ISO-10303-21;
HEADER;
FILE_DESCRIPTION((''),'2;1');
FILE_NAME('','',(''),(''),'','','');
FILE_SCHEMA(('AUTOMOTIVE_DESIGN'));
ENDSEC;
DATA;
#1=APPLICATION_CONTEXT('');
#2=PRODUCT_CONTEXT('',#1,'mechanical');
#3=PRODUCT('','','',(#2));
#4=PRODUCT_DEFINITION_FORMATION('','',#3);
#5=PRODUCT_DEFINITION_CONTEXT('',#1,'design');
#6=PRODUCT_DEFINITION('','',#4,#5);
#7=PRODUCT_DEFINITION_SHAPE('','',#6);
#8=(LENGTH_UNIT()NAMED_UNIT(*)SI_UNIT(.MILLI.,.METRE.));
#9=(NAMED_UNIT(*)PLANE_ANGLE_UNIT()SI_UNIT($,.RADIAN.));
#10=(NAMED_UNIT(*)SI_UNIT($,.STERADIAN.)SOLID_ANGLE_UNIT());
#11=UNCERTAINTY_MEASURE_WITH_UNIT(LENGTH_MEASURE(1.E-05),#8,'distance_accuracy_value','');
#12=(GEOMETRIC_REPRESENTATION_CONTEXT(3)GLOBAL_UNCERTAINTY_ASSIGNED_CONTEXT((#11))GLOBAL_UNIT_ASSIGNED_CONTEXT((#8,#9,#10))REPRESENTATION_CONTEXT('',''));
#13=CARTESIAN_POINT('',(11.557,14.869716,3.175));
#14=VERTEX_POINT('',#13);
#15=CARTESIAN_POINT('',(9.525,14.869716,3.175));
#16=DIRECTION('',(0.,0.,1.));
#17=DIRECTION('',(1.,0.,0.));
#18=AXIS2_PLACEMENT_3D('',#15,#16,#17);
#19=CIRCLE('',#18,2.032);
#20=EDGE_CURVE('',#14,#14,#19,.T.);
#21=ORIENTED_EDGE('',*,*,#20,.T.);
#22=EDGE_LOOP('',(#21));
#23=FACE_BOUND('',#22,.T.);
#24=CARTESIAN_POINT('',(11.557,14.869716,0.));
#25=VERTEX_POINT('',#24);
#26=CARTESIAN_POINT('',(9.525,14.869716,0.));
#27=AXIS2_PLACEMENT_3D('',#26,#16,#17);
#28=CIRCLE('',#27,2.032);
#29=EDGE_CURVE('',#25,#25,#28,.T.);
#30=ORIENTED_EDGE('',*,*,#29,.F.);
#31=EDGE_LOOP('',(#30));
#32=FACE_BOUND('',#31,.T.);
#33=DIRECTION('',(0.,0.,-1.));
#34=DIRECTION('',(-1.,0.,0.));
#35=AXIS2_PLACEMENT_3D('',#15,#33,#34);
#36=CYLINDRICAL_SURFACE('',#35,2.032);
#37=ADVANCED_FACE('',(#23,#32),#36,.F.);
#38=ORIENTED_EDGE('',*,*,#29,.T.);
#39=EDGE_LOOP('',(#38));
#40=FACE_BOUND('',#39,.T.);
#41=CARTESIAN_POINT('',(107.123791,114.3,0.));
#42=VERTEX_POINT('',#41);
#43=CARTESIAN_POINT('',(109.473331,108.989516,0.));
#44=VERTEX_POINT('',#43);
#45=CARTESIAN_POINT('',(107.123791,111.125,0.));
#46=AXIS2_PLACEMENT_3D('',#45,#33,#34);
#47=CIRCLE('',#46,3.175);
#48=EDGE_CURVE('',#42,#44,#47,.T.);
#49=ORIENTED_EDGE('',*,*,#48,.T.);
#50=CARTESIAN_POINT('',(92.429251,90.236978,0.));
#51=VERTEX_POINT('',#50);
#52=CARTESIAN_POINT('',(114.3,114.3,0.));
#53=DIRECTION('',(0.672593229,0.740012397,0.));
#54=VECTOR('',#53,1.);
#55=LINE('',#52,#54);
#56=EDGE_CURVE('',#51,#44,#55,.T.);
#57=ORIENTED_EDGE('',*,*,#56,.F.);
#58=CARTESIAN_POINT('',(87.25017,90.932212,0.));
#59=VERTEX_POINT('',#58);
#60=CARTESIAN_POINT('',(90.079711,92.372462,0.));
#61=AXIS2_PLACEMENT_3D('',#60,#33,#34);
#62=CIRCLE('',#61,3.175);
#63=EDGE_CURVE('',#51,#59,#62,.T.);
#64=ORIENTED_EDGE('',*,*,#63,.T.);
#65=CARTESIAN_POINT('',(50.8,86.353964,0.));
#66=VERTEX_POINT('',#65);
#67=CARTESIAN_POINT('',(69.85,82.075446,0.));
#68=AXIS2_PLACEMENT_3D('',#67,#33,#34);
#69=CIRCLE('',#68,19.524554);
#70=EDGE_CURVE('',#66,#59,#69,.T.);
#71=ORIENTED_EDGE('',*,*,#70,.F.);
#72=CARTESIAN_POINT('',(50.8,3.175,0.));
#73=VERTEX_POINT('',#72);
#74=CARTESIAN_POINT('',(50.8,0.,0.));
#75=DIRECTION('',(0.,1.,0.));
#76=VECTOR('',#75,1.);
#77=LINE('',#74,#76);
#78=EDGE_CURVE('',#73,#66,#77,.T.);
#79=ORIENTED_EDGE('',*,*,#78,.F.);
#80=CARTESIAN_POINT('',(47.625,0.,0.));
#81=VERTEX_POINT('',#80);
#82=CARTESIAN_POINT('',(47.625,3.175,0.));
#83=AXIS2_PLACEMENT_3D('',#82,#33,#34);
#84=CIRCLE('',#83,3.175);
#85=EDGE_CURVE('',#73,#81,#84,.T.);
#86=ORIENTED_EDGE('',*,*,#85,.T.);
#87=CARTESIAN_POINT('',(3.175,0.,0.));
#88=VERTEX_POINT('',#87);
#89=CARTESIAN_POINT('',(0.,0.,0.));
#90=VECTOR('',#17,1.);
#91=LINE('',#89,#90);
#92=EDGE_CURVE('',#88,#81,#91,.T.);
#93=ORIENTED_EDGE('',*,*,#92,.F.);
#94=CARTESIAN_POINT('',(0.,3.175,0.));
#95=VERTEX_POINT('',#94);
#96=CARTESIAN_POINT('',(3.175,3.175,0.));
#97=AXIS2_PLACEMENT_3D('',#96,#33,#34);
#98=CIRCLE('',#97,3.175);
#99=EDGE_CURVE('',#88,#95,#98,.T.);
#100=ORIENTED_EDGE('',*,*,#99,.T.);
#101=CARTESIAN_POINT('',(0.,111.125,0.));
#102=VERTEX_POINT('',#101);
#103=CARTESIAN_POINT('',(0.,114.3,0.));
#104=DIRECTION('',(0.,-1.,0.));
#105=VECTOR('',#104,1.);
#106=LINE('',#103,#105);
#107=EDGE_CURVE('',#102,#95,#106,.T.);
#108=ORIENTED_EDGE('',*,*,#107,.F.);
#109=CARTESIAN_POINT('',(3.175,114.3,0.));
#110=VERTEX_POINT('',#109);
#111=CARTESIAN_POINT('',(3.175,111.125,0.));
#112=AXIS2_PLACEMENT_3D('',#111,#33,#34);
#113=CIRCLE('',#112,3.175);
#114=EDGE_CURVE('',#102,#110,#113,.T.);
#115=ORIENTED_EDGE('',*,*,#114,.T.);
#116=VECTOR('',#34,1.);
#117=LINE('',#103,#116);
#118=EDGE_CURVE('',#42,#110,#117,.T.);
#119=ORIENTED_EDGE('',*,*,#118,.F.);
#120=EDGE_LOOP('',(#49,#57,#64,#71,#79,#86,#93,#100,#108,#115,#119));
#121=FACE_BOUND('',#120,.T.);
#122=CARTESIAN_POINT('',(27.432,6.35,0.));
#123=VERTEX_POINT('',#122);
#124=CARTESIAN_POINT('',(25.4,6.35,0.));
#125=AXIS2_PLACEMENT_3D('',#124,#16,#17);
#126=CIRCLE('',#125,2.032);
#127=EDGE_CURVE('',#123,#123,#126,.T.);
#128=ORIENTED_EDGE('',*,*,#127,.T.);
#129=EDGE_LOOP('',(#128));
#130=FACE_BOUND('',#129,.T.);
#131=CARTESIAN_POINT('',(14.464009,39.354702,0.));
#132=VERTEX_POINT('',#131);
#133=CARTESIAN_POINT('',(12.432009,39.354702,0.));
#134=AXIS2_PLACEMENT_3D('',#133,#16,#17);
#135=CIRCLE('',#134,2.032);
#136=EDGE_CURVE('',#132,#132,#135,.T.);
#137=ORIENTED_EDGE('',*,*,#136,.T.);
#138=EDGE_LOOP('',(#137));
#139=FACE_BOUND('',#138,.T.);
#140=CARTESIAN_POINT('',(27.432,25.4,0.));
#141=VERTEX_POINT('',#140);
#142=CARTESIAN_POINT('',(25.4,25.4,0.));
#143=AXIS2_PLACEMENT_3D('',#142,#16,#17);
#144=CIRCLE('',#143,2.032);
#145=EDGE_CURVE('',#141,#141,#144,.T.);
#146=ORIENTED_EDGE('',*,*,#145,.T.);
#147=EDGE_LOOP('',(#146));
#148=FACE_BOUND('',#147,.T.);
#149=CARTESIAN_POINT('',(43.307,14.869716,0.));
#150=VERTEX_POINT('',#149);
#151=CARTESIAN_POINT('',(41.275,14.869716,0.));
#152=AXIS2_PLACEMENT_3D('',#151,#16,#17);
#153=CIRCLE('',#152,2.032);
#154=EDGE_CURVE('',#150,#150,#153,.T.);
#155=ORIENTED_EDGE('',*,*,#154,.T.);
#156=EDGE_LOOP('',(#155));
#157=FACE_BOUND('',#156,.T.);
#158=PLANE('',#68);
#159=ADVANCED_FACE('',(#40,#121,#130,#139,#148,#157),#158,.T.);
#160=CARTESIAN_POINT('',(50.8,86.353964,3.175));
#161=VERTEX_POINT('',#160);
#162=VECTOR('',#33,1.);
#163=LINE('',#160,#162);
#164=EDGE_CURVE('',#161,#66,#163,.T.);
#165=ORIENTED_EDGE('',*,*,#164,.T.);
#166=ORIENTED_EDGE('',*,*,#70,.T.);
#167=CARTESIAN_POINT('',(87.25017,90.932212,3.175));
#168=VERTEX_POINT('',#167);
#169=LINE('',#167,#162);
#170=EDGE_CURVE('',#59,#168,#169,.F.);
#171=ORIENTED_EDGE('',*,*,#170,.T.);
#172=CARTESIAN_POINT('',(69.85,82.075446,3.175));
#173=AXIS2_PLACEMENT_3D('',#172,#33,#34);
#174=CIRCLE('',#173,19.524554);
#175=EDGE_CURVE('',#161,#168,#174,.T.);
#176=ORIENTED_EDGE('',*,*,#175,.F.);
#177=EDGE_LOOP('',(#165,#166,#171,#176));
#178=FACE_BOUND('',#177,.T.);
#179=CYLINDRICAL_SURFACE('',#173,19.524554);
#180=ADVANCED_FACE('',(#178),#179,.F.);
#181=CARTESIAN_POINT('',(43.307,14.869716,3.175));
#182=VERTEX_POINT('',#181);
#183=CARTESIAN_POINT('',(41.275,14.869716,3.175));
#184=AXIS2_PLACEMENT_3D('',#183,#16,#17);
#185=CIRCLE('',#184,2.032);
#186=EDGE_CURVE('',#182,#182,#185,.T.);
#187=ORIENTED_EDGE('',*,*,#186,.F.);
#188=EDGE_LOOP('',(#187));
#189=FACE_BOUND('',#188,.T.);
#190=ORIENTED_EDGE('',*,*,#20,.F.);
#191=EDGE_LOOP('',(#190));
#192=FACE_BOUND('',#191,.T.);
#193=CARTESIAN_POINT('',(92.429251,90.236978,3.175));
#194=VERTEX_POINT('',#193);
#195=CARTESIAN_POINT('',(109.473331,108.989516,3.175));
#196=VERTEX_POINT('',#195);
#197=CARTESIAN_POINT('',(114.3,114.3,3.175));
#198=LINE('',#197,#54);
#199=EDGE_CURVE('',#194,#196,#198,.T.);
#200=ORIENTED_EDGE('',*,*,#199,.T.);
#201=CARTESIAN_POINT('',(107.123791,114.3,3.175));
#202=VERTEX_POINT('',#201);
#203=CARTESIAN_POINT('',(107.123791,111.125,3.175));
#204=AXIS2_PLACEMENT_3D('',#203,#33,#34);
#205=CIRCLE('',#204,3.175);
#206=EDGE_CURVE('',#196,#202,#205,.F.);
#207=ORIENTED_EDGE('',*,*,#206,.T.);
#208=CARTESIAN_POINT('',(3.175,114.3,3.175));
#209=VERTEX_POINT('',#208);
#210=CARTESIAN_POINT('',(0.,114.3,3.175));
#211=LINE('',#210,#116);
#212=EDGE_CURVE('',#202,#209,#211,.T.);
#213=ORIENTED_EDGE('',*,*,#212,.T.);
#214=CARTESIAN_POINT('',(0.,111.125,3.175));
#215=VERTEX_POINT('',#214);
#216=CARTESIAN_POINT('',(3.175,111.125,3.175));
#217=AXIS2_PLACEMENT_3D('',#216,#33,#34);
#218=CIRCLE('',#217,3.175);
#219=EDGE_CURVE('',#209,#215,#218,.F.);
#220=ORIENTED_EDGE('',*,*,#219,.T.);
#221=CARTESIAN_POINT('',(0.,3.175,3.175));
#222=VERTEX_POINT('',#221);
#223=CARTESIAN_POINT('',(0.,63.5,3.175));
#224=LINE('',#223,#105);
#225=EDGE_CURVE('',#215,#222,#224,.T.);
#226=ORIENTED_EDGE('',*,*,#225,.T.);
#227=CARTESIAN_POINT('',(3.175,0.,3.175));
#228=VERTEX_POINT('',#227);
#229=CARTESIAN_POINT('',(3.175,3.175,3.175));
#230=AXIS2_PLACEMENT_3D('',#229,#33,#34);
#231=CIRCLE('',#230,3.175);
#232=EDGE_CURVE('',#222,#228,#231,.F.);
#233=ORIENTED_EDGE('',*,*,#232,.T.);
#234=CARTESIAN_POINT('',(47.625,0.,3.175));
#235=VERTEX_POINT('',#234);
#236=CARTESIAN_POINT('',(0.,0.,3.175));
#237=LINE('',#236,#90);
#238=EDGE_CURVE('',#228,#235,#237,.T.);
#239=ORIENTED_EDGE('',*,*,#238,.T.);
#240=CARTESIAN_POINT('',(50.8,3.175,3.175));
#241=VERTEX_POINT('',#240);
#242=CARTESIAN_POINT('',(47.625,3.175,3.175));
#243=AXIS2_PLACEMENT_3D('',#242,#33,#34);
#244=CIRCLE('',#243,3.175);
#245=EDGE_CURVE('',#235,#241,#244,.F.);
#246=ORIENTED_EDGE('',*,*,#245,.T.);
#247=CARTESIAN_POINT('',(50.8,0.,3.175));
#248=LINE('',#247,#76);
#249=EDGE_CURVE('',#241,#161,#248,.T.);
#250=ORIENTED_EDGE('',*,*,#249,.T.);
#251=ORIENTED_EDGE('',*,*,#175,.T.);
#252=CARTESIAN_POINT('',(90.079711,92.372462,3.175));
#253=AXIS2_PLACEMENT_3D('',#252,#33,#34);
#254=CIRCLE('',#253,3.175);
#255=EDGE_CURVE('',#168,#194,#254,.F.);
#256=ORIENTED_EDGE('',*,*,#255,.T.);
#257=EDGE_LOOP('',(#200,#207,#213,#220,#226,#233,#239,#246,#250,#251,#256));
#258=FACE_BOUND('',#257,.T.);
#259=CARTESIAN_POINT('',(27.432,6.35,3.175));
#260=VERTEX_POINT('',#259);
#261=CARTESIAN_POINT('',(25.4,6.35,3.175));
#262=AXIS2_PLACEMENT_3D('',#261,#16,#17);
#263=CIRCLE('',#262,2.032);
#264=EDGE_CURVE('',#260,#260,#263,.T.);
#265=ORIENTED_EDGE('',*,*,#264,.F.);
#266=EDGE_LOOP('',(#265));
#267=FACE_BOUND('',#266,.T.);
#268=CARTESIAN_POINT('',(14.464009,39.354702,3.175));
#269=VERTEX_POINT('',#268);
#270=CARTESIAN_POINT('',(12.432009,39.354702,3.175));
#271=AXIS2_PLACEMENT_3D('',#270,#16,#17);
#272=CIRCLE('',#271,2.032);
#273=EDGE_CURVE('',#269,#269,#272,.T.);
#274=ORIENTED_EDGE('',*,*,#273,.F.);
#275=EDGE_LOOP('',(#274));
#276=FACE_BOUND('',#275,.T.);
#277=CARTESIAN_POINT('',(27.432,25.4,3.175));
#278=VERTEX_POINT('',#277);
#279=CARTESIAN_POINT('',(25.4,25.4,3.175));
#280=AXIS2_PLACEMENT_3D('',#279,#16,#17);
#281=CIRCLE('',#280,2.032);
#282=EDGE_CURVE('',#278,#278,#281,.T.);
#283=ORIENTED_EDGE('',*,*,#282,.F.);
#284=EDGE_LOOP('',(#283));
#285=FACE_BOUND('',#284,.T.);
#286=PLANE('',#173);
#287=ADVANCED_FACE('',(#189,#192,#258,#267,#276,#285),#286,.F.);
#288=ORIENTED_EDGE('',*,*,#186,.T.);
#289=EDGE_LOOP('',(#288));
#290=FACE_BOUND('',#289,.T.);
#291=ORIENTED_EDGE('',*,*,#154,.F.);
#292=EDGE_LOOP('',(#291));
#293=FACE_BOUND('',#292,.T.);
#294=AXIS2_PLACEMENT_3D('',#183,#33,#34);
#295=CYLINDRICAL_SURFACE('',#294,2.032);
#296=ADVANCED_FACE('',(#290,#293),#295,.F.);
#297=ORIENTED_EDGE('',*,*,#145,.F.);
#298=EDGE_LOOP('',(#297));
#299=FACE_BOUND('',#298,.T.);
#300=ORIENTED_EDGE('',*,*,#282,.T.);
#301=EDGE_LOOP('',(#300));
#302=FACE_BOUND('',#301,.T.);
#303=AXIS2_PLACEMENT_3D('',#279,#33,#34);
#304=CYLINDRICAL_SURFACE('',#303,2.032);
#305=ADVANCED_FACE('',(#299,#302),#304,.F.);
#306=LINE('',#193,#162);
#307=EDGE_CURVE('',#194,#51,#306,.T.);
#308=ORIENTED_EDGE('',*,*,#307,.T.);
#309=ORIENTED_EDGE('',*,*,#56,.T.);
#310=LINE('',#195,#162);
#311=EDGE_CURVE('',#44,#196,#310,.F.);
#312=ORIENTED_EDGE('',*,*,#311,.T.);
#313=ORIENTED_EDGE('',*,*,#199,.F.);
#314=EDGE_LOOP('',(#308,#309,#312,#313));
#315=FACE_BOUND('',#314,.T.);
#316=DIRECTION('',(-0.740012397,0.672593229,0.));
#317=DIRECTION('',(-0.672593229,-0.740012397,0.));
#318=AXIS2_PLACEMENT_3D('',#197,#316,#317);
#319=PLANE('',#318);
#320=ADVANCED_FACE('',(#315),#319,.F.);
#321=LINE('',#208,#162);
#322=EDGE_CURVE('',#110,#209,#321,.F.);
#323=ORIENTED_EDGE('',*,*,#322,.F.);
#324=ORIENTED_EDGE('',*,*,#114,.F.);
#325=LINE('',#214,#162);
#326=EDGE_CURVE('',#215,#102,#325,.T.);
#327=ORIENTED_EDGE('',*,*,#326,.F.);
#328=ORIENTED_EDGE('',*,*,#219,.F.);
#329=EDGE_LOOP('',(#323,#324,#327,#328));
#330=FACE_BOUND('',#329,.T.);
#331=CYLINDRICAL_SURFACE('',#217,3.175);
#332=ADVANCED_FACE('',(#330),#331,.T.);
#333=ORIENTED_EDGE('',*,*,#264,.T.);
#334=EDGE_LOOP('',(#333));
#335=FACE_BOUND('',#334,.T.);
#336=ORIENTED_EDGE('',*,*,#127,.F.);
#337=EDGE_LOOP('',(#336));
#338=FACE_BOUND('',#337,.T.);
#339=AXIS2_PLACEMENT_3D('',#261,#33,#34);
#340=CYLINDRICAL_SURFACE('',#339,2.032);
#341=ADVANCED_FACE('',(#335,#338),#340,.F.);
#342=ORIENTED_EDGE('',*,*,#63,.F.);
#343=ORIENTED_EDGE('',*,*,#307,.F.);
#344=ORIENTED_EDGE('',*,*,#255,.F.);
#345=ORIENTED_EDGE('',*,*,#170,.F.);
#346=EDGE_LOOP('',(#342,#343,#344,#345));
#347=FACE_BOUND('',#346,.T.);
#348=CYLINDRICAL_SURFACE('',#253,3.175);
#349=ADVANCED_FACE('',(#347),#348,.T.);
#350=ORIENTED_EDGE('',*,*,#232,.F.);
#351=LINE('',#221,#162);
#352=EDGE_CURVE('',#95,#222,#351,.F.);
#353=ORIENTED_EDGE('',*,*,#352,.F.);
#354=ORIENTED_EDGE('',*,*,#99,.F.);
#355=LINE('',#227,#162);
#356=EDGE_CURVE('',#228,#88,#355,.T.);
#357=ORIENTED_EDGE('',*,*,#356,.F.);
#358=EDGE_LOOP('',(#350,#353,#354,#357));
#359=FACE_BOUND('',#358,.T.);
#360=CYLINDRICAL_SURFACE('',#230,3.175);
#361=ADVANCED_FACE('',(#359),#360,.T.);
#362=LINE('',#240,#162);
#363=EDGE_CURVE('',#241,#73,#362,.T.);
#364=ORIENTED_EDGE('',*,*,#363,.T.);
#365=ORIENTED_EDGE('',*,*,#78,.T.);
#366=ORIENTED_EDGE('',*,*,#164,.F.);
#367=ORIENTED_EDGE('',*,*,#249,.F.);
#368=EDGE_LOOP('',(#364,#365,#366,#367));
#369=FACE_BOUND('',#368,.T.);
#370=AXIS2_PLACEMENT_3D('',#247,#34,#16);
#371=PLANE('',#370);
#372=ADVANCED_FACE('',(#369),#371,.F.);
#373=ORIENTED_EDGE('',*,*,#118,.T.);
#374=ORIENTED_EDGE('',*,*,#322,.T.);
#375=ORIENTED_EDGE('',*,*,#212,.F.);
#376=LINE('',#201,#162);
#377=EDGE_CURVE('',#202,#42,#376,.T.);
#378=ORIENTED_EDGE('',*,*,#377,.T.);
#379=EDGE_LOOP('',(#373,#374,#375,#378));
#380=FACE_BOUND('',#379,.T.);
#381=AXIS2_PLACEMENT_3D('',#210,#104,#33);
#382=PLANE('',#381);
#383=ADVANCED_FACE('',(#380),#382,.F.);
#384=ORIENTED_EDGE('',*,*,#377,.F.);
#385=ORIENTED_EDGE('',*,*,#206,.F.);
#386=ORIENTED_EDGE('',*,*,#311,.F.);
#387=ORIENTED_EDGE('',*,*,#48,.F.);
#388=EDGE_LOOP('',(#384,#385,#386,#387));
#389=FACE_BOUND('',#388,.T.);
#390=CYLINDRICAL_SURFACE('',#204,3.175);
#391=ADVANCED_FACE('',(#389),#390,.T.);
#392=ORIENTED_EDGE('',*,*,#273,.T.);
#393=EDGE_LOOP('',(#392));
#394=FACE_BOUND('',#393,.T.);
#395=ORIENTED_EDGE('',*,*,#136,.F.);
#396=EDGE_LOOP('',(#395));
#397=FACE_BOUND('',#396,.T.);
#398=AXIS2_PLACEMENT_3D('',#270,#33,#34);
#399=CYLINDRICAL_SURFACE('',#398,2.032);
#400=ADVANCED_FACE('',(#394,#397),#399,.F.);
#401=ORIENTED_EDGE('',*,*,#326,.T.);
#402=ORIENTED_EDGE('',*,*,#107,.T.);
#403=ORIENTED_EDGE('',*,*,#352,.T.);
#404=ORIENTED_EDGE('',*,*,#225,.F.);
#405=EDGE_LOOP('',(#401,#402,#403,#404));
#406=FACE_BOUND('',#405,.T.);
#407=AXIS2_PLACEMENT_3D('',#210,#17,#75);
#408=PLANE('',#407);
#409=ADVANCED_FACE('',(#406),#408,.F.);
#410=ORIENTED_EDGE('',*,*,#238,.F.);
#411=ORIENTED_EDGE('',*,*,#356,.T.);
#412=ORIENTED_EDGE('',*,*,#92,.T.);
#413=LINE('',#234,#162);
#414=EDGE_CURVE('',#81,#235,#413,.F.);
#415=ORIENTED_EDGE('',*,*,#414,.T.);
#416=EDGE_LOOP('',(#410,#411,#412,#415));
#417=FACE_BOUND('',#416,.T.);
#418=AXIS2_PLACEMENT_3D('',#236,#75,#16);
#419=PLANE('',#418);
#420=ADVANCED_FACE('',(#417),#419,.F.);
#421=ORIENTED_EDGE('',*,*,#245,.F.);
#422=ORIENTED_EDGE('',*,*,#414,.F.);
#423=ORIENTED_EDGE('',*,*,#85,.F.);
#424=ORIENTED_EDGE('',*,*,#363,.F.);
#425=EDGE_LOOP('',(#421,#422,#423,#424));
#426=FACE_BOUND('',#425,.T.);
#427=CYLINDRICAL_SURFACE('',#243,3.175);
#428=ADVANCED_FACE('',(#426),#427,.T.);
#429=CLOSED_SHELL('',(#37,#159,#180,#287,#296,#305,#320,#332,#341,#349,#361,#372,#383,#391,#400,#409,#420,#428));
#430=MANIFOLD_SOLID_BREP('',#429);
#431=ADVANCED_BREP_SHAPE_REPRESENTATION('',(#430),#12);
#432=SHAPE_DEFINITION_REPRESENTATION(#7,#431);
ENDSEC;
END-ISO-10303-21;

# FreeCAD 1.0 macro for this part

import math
import FreeCAD as App
import Part
import Sketcher

V = App.Vector
Q = App.Units.Quantity


def edges_at(feature, points):
    """Names of the edges that pass closest to the given points."""
    edges = feature.Shape.Edges
    near = lambda p: min(range(len(edges)), key=lambda i: edges[i].distToShape(Part.Vertex(*p))[0])
    return sorted({f"Edge{near(p) + 1}" for p in points})

doc = App.newDocument("Part")
body = doc.addObject("PartDesign::Body", "Body")

# Sketch on XY plane
sketch1 = body.newObject("Sketcher::SketchObject", "Sketch")
sketch1.AttachmentSupport = (doc.getObject("XY_Plane"), [""])
sketch1.MapMode = "FlatFace"
sketch1.addGeometry([
    Part.LineSegment(V(114.3, 114.3, 0), V(0, 114.3, 0)),  # 0
    Part.LineSegment(V(0, 114.3, 0), V(0, 0, 0)),  # 1
    Part.LineSegment(V(0, 0, 0), V(50.8, 0, 0)),  # 2
    Part.LineSegment(V(50.8, 0, 0), V(50.8, 86.353964, 0)),  # 3
    Part.ArcOfCircle(Part.Circle(V(69.85, 82.075446, 0), V(0, 0, 1), 19.524554), math.radians(12.658246), math.radians(167.341754)),  # 4
    Part.LineSegment(V(88.9, 86.353964, 0), V(114.3, 114.3, 0)),  # 5
    Part.Circle(V(41.275, 14.869716, 0), V(0, 0, 1), 2.032),  # 6
    Part.Circle(V(25.4, 6.35, 0), V(0, 0, 1), 2.032),  # 7
    Part.Circle(V(9.525, 14.869716, 0), V(0, 0, 1), 2.032),  # 8
    Part.Circle(V(25.4, 25.4, 0), V(0, 0, 1), 2.032),  # 9
    Part.Circle(V(12.432009, 39.354702, 0), V(0, 0, 1), 2.032),  # 10
], False)
sketch1.addConstraint([
    Sketcher.Constraint("Coincident", 0, 2, 1, 1),
    Sketcher.Constraint("Coincident", 1, 2, 2, 1),
    Sketcher.Constraint("Coincident", 2, 2, 3, 1),
    Sketcher.Constraint("Coincident", 3, 2, 4, 2),
    Sketcher.Constraint("Coincident", 4, 1, 5, 1),
    Sketcher.Constraint("Coincident", 5, 2, 0, 1),
    Sketcher.Constraint("Horizontal", 0),
    Sketcher.Constraint("Vertical", 1),
    Sketcher.Constraint("Horizontal", 2),
    Sketcher.Constraint("Vertical", 3),
    Sketcher.Constraint("Coincident", 1, 2, -1, 1),
    Sketcher.Constraint("Equal", 6, 7),
    Sketcher.Constraint("Equal", 7, 8),
    Sketcher.Constraint("Equal", 8, 9),
    Sketcher.Constraint("Equal", 9, 10),
    Sketcher.Constraint("Horizontal", 6, 3, 8, 3),
    Sketcher.Constraint("Horizontal", 3, 2, 4, 1),
    Sketcher.Constraint("Vertical", 7, 3, 9, 3),
    Sketcher.Constraint("Equal", 0, 1),
    Sketcher.Constraint("Diameter", 6, Q("0.16 in")),
    Sketcher.Constraint("DistanceX", 2, 1, 2, 2, Q("2 in")),
    Sketcher.Constraint("DistanceX", 0, 2, 0, 1, Q("4.5 in")),
    Sketcher.Constraint("DistanceX", -1, 1, 7, 3, Q("1 in")),
    Sketcher.Constraint("DistanceY", -1, 1, 9, 3, Q("1 in")),
    Sketcher.Constraint("DistanceX", 4, 1, 5, 2, Q("1 in")),
    Sketcher.Constraint("DistanceY", -1, 1, 7, 3, Q("0.25 in")),
    Sketcher.Constraint("DistanceX", 8, 3, 6, 3, Q("1.25 in")),
    Sketcher.Constraint("DistanceX", -1, 1, 6, 3, Q("1.625 in")),
    Sketcher.Constraint("Radius", 4, Q("19.524554 mm")),
    Sketcher.Constraint("DistanceY", -1, 1, 10, 3, Q("39.354702 mm")),
    Sketcher.Constraint("Distance", 5, Q("37.764281 mm")),
    Sketcher.Constraint("DistanceX", -1, 1, 10, 3, Q("12.432009 mm")),
    Sketcher.Constraint("DistanceY", 6, 3, 4, 3, Q("67.20573 mm")),
])
pad1 = body.newObject("PartDesign::Pad", "Pad")
pad1.Profile = sketch1
pad1.Length = Q("0.125 in")
doc.recompute()

fillet = body.newObject("PartDesign::Fillet", "Fillet")
fillet.Base = (pad1, edges_at(pad1, [
    (0, 114.3, 1.587),
    (114.3, 114.3, 1.587),
    (88.9, 86.354, 1.587),
    (50.8, 0, 1.587),
    (0, 0, 1.587),
]))
fillet.Radius = Q("0.125 in")

doc.recompute()
